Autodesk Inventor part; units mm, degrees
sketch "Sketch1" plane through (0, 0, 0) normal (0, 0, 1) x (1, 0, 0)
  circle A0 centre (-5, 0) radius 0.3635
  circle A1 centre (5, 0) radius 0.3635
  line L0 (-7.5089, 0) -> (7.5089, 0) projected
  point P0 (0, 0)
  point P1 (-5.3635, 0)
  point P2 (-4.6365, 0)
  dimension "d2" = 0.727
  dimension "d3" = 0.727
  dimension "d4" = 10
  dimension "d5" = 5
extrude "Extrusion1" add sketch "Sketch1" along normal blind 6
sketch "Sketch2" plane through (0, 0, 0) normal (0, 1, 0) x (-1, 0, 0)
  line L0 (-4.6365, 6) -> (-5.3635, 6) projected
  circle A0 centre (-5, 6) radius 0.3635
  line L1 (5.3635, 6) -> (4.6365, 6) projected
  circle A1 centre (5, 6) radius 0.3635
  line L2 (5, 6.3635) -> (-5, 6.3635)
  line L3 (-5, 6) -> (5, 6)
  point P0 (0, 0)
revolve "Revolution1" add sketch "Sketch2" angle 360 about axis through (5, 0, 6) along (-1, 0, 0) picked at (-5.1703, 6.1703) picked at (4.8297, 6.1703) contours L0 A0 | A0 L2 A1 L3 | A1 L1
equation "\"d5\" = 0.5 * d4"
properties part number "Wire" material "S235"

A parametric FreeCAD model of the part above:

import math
import FreeCAD as App
import Part
import Sketcher

V = App.Vector

doc = App.newDocument("Part")
body = doc.addObject("PartDesign::Body", "Body")
body.AllowCompound = True

sketch1 = doc.addObject("Sketcher::SketchObject", "Sketch")
body.addObject(sketch1)
sketch1.AttachmentSupport = (doc.XY_Plane, [""])
sketch1.MapMode = "FlatFace"
sketch1.addGeometry([
    Part.Circle(V(-5, 0, 0), V(0, 0, 1), 0.36),
    Part.Circle(V(5, 0, 0), V(0, 0, 1), 0.36),
], False)
sketch1.addConstraint([
    Sketcher.Constraint("Equal", 0, 1),
    Sketcher.Constraint("Symmetric", 0, 3, 1, 3, -1, 1),
    Sketcher.Constraint("PointOnObject", 0, 3, -1),
    Sketcher.Constraint("Diameter", 0, 0.727),
    Sketcher.Constraint("DistanceX", 0, 3, -1, 1, 5.0),
])
pad1 = doc.addObject("PartDesign::Pad", "Pad")
body.addObject(pad1)
pad1.Profile = sketch1
pad1.Length = 6

sketch2 = doc.addObject("Sketcher::SketchObject", "Sketch001")
body.addObject(sketch2)
sketch2.AttachmentSupport = (doc.XZ_Plane, [""])
sketch2.MapMode = "FlatFace"
sketch2.addGeometry([
    Part.ArcOfCircle(Part.Circle(V(-5, 6, 0), V(0, 0, 1), 0.36), math.radians(90), math.radians(180)),
    Part.LineSegment(V(-5, 6.36, 0), V(5, 6.36, 0)),
    Part.ArcOfCircle(Part.Circle(V(5, 6, 0), V(0, 0, 1), 0.36), math.radians(0), math.radians(90)),
    Part.LineSegment(V(5.36, 6, 0), V(-5.36, 6, 0)),
], False)
sketch2.addGeometry(Part.LineSegment(V(5.36, 6, 0), V(-5.36, 6, 0)), True)
sketch2.addConstraint([
    Sketcher.Constraint("Tangent", 0, 1, 1, 1),
    Sketcher.Constraint("Tangent", 1, 2, 2, 2),
    Sketcher.Constraint("Coincident", 2, 1, 3, 1),
    Sketcher.Constraint("Coincident", 3, 2, 0, 2),
    Sketcher.Constraint("Horizontal", 1),
    Sketcher.Constraint("Horizontal", 3),
    Sketcher.Constraint("Horizontal", 4),
    Sketcher.Constraint("Coincident", 4, 1, 2, 1),
    Sketcher.Constraint("Equal", 0, 2),
    Sketcher.Constraint("Horizontal", 0, 3, 2, 1),
    Sketcher.Constraint("Equal", 3, 4),
    Sketcher.Constraint("DistanceX", 1, 1, 1, 2, 10.0),
    Sketcher.Constraint("DistanceX", 0, 3, -1, 1, 5.0),
    Sketcher.Constraint("DistanceY", -1, 1, 0, 3, 6.0),
    Sketcher.Constraint("Radius", 0, 0.3635),
])
revolution = doc.addObject("PartDesign::Revolution", "Revolution")
body.addObject(revolution)
revolution.Profile = sketch2
revolution.ReferenceAxis = (sketch2, ["Axis0"])
revolution.Angle = 360

doc.recompute()
